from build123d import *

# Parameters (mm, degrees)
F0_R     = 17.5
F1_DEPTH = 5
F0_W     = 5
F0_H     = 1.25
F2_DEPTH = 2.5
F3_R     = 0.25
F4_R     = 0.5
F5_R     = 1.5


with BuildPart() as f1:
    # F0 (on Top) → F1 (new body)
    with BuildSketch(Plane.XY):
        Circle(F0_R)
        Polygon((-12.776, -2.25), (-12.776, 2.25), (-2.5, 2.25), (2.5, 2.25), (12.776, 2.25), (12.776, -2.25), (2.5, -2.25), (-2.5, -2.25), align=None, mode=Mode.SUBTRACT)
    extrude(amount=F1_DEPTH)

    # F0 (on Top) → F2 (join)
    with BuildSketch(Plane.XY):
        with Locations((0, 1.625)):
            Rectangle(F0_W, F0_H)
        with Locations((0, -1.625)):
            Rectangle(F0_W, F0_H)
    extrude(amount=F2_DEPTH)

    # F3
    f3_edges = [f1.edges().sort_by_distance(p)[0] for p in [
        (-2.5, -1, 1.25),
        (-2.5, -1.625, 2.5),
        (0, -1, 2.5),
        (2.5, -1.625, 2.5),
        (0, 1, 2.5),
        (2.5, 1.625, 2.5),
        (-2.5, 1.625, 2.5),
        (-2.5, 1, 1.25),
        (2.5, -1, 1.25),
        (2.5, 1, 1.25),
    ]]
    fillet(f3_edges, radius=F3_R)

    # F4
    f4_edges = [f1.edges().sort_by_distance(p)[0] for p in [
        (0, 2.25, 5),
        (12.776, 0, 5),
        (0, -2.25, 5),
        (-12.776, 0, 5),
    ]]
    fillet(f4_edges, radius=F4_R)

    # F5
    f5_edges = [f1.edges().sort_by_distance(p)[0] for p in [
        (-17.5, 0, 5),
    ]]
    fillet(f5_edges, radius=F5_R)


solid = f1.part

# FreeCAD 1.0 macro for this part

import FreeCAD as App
import Part
import Sketcher
from FreeCAD import Vector


def edges_at(feature, points):
    """Names of the edges that pass closest to the given points."""
    edges = feature.Shape.Edges
    near = lambda p: min(range(len(edges)), key=lambda i: edges[i].distToShape(Part.Vertex(*p))[0])
    return sorted({f"Edge{near(p) + 1}" for p in points})

doc = App.newDocument("Part")
body = doc.addObject("PartDesign::Body", "Body")

# Sketch on XY plane
sketch1 = body.newObject("Sketcher::SketchObject", "Sketch")
sketch1.AttachmentSupport = (doc.getObject("XY_Plane"), [""])
sketch1.MapMode = "FlatFace"
sketch1.addGeometry(Part.Circle(Vector(0, 0, 0), Vector(0, 0, 1), 17.5), False)
sketch1.addGeometry(Part.LineSegment(Vector(12.776, -2.25, 0), Vector(-12.776, -2.25, 0)), False)
sketch1.addGeometry(Part.LineSegment(Vector(-12.776, -2.25, 0), Vector(-12.776, 2.25, 0)), False)
sketch1.addGeometry(Part.LineSegment(Vector(-12.776, 2.25, 0), Vector(12.776, 2.25, 0)), False)
sketch1.addGeometry(Part.LineSegment(Vector(12.776, 2.25, 0), Vector(12.776, -2.25, 0)), False)
sketch1.addConstraint(Sketcher.Constraint("Coincident", 1, 2, 2, 1))
sketch1.addConstraint(Sketcher.Constraint("Coincident", 2, 2, 3, 1))
sketch1.addConstraint(Sketcher.Constraint("Coincident", 3, 2, 4, 1))
sketch1.addConstraint(Sketcher.Constraint("Coincident", 4, 2, 1, 1))
sketch1.addConstraint(Sketcher.Constraint("Horizontal", 1))
sketch1.addConstraint(Sketcher.Constraint("Vertical", 2))
sketch1.addConstraint(Sketcher.Constraint("Horizontal", 3))
sketch1.addConstraint(Sketcher.Constraint("Vertical", 4))
sketch1.addConstraint(Sketcher.Constraint("Coincident", 0, 3, -1, 1))
sketch1.addConstraint(Sketcher.Constraint("Symmetric", 1, 2, 3, 2, -1, 1))
sketch1.addConstraint(Sketcher.Constraint("Diameter", 0, 35.0))
sketch1.addConstraint(Sketcher.Constraint("DistanceY", 2, 1, 2, 2, 4.5))
sketch1.addConstraint(Sketcher.Constraint("DistanceX", 1, 2, 1, 1, 25.552))
pad1 = body.newObject("PartDesign::Pad", "Pad")
pad1.Profile = sketch1
pad1.Length = 5

# Sketch on XY plane
sketch2 = body.newObject("Sketcher::SketchObject", "Sketch001")
sketch2.AttachmentSupport = (doc.getObject("XY_Plane"), [""])
sketch2.MapMode = "FlatFace"
sketch2.addGeometry(Part.LineSegment(Vector(-2.5, 2.25, 0), Vector(-2.5, 1, 0)), False)
sketch2.addGeometry(Part.LineSegment(Vector(-2.5, 1, 0), Vector(2.5, 1, 0)), False)
sketch2.addGeometry(Part.LineSegment(Vector(2.5, 1, 0), Vector(2.5, 2.25, 0)), False)
sketch2.addGeometry(Part.LineSegment(Vector(2.5, 2.25, 0), Vector(-2.5, 2.25, 0)), False)
sketch2.addGeometry(Part.LineSegment(Vector(-2.5, -1, 0), Vector(-2.5, -2.25, 0)), False)
sketch2.addGeometry(Part.LineSegment(Vector(-2.5, -2.25, 0), Vector(2.5, -2.25, 0)), False)
sketch2.addGeometry(Part.LineSegment(Vector(2.5, -2.25, 0), Vector(2.5, -1, 0)), False)
sketch2.addGeometry(Part.LineSegment(Vector(2.5, -1, 0), Vector(-2.5, -1, 0)), False)
sketch2.addConstraint(Sketcher.Constraint("Coincident", 0, 2, 1, 1))
sketch2.addConstraint(Sketcher.Constraint("Coincident", 1, 2, 2, 1))
sketch2.addConstraint(Sketcher.Constraint("Coincident", 2, 2, 3, 1))
sketch2.addConstraint(Sketcher.Constraint("Coincident", 3, 2, 0, 1))
sketch2.addConstraint(Sketcher.Constraint("Coincident", 4, 2, 5, 1))
sketch2.addConstraint(Sketcher.Constraint("Coincident", 5, 2, 6, 1))
sketch2.addConstraint(Sketcher.Constraint("Coincident", 6, 2, 7, 1))
sketch2.addConstraint(Sketcher.Constraint("Coincident", 7, 2, 4, 1))
sketch2.addConstraint(Sketcher.Constraint("Vertical", 0))
sketch2.addConstraint(Sketcher.Constraint("Horizontal", 1))
sketch2.addConstraint(Sketcher.Constraint("Vertical", 2))
sketch2.addConstraint(Sketcher.Constraint("Horizontal", 3))
sketch2.addConstraint(Sketcher.Constraint("Vertical", 4))
sketch2.addConstraint(Sketcher.Constraint("Horizontal", 5))
sketch2.addConstraint(Sketcher.Constraint("Vertical", 6))
sketch2.addConstraint(Sketcher.Constraint("Horizontal", 7))
sketch2.addConstraint(Sketcher.Constraint("Symmetric", 2, 2, 4, 2, -1, 1))
sketch2.addConstraint(Sketcher.Constraint("Symmetric", 0, 2, 6, 2, -1, 1))
sketch2.addConstraint(Sketcher.Constraint("Vertical", 3, 2, 4, 2))
sketch2.addConstraint(Sketcher.Constraint("DistanceX", 1, 1, 1, 2, 5.0))
sketch2.addConstraint(Sketcher.Constraint("DistanceY", -1, 1, 0, 2, 1.0))
sketch2.addConstraint(Sketcher.Constraint("DistanceY", 0, 2, 0, 1, 1.25))
pad2 = body.newObject("PartDesign::Pad", "Pad001")
pad2.Profile = sketch2
pad2.Length = 2.5
doc.recompute()

fillet = body.newObject("PartDesign::Fillet", "Fillet")
fillet.Base = (pad2, edges_at(pad2, [
    (-2.5, -1, 1.25),
    (-2.5, -1.625, 2.5),
    (0, -1, 2.5),
    (2.5, -1.625, 2.5),
    (0, 1, 2.5),
    (2.5, 1.625, 2.5),
    (-2.5, 1.625, 2.5),
    (-2.5, 1, 1.25),
    (2.5, -1, 1.25),
    (2.5, 1, 1.25),
]))
fillet.Radius = 0.25
doc.recompute()

fillet2 = body.newObject("PartDesign::Fillet", "Fillet001")
fillet2.Base = (fillet, edges_at(fillet, [
    (0, 2.25, 5),
    (12.776, 0, 5),
    (0, -2.25, 5),
    (-12.776, 0, 5),
]))
fillet2.Radius = 0.5
doc.recompute()

fillet3 = body.newObject("PartDesign::Fillet", "Fillet002")
fillet3.Base = (fillet2, edges_at(fillet2, [(-17.5, 0, 5)]))
fillet3.Radius = 1.5

doc.recompute()
